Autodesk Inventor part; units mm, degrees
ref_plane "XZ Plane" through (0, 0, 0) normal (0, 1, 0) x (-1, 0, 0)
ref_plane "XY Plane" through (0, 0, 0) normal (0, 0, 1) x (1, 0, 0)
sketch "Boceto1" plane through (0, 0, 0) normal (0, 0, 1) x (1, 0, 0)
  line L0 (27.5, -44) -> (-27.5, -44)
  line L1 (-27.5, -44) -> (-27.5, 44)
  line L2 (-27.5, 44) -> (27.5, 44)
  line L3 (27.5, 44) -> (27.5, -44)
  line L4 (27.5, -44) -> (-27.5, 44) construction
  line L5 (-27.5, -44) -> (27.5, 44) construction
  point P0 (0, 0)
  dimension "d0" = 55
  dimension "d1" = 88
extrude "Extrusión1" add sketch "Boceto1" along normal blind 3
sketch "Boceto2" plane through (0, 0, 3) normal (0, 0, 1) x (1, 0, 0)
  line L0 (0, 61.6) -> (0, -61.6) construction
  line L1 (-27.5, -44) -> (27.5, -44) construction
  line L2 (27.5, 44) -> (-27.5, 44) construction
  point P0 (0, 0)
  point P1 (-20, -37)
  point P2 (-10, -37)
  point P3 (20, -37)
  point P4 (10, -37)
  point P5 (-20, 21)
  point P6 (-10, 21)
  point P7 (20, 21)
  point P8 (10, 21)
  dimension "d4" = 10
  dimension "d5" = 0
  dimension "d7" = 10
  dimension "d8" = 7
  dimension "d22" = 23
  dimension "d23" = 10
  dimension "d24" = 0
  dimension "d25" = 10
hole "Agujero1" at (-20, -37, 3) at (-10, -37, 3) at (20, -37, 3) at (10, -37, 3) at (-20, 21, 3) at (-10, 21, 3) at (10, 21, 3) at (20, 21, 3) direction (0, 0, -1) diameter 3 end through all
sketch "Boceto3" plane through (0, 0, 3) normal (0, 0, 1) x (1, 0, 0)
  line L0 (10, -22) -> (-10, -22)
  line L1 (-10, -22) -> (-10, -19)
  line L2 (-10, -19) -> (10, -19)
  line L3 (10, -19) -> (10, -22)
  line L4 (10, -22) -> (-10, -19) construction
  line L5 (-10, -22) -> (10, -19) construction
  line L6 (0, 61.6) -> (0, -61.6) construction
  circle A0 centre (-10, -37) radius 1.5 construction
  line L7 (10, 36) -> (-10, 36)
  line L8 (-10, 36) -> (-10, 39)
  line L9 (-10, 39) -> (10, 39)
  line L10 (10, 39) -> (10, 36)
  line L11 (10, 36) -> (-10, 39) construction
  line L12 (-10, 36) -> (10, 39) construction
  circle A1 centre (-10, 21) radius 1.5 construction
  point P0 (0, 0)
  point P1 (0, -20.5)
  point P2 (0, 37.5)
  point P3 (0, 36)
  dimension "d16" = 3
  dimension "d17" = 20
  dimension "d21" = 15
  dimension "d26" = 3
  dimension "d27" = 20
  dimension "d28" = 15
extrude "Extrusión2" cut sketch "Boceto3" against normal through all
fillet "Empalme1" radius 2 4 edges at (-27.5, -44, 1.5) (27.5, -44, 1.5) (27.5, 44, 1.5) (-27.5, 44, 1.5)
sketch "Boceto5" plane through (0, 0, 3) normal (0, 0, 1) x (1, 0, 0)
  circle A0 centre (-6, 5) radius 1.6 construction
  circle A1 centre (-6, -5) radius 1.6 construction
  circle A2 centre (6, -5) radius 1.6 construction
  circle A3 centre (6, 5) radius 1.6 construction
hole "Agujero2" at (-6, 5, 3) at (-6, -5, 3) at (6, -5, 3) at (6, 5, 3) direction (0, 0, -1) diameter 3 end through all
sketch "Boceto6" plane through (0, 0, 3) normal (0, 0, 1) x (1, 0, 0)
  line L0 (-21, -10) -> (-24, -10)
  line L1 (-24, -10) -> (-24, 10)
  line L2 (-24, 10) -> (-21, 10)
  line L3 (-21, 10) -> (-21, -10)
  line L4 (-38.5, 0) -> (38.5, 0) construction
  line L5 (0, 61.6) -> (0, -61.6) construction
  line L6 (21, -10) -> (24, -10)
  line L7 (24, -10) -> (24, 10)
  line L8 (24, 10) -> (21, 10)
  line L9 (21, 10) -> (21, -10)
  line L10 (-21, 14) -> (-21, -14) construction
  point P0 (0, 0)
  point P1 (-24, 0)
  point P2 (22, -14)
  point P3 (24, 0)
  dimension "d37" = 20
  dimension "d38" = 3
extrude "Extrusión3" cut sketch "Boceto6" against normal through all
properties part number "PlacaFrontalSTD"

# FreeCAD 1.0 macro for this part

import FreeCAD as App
import Part
import Sketcher
from FreeCAD import Vector
Q = App.Units.Quantity


def edges_at(feature, points):
    """Names of the edges that pass closest to the given points."""
    edges = feature.Shape.Edges
    near = lambda p: min(range(len(edges)), key=lambda i: edges[i].distToShape(Part.Vertex(*p))[0])
    return sorted({f"Edge{near(p) + 1}" for p in points})

doc = App.newDocument("Part")
params = doc.addObject("Spreadsheet::Sheet", "Params")
for row, (alias, value) in enumerate([
    ("sketch1_width", "55 mm"),
    ("sketch1_height", "88 mm"),
    ("pad1_length", "3 mm"),
    ("sketch2_diameter", "3 mm"),
    ("hole_diameter", "3 mm"),
    ("sketch3_width", "20 mm"),
    ("sketch3_height", "3 mm"),
    ("fillet_radius", "2 mm"),
    ("sketch4_diameter", "3 mm"),
    ("hole2_diameter", "3 mm"),
    ("sketch5_width", "3 mm"),
    ("sketch5_height", "20 mm"),
], start=1):
    params.set(f"A{row}", alias)
    params.set(f"B{row}", "=" + value)
    params.setAlias(f"B{row}", alias)

body = doc.addObject("PartDesign::Body", "Body")

sketch1 = body.newObject("Sketcher::SketchObject", "Sketch")
sketch1.AttachmentSupport = (doc.getObject("XY_Plane"), [""])
sketch1.MapMode = "FlatFace"
sketch1.addGeometry([
    Part.LineSegment(Vector(-28, -44, 0), Vector(28, -44, 0)),
    Part.LineSegment(Vector(28, -44, 0), Vector(28, 44, 0)),
    Part.LineSegment(Vector(28, 44, 0), Vector(-28, 44, 0)),
    Part.LineSegment(Vector(-28, 44, 0), Vector(-28, -44, 0)),
], False)
sketch1.addConstraint([
    Sketcher.Constraint("Coincident", 0, 2, 1, 1),
    Sketcher.Constraint("Coincident", 1, 2, 2, 1),
    Sketcher.Constraint("Coincident", 2, 2, 3, 1),
    Sketcher.Constraint("Coincident", 3, 2, 0, 1),
    Sketcher.Constraint("Horizontal", 0),
    Sketcher.Constraint("Vertical", 1),
    Sketcher.Constraint("Horizontal", 2),
    Sketcher.Constraint("Vertical", 3),
    Sketcher.Constraint("Symmetric", 0, 2, 2, 2, -1, 1),
    Sketcher.Constraint("DistanceX", 0, 1, 0, 2, Q("55 mm")),
    Sketcher.Constraint("DistanceY", 1, 1, 1, 2, Q("88 mm")),
])
sketch1.setExpression("Constraints[9]", "Params.sketch1_width")
sketch1.setExpression("Constraints[10]", "Params.sketch1_height")
pad1 = body.newObject("PartDesign::Pad", "Pad")
pad1.Profile = sketch1
pad1.setExpression("Length", "Params.pad1_length")

sketch2 = body.newObject("Sketcher::SketchObject", "Sketch001")
sketch2.AttachmentSupport = (doc.getObject("XY_Plane"), [""])
sketch2.MapMode = "FlatFace"
sketch2.AttachmentOffset = App.Placement(Vector(0, 0, 3), App.Rotation())
sketch2.addGeometry([
    Part.Circle(Vector(-20, -37, 0), Vector(0, 0, 1), 1.5),
    Part.Circle(Vector(-10, -37, 0), Vector(0, 0, 1), 1.5),
    Part.Circle(Vector(20, -37, 0), Vector(0, 0, 1), 1.5),
    Part.Circle(Vector(10, -37, 0), Vector(0, 0, 1), 1.5),
    Part.Circle(Vector(-20, 21, 0), Vector(0, 0, 1), 1.5),
    Part.Circle(Vector(-10, 21, 0), Vector(0, 0, 1), 1.5),
    Part.Circle(Vector(10, 21, 0), Vector(0, 0, 1), 1.5),
    Part.Circle(Vector(20, 21, 0), Vector(0, 0, 1), 1.5),
], False)
sketch2.addConstraint([
    Sketcher.Constraint("Equal", 0, 1),
    Sketcher.Constraint("Equal", 1, 2),
    Sketcher.Constraint("Equal", 2, 3),
    Sketcher.Constraint("Equal", 3, 4),
    Sketcher.Constraint("Equal", 4, 5),
    Sketcher.Constraint("Equal", 5, 6),
    Sketcher.Constraint("Equal", 6, 7),
    Sketcher.Constraint("Symmetric", 0, 3, 2, 3, -2),
    Sketcher.Constraint("Symmetric", 1, 3, 3, 3, -2),
    Sketcher.Constraint("Symmetric", 5, 3, 6, 3, -2),
    Sketcher.Constraint("Symmetric", 4, 3, 7, 3, -2),
    Sketcher.Constraint("Horizontal", 0, 3, 1, 3),
    Sketcher.Constraint("Horizontal", 4, 3, 5, 3),
    Sketcher.Constraint("Vertical", 0, 3, 4, 3),
    Sketcher.Constraint("Vertical", 1, 3, 5, 3),
    Sketcher.Constraint("Diameter", 0, Q("3 mm")),
    Sketcher.Constraint("DistanceX", 0, 3, -1, 1, Q("20 mm")),
    Sketcher.Constraint("DistanceY", 0, 3, -1, 1, Q("37 mm")),
    Sketcher.Constraint("DistanceX", 1, 3, -1, 1, Q("10 mm")),
    Sketcher.Constraint("DistanceY", -1, 1, 4, 3, Q("21 mm")),
])
sketch2.setExpression("Constraints[15]", "Params.sketch2_diameter")
doc.recompute()
hole = body.newObject("PartDesign::Hole", "Hole")
hole.Profile = sketch2
hole.ThreadType = "None"
hole.setExpression("Diameter", "Params.hole_diameter")
hole.DepthType = "ThroughAll"

sketch3 = body.newObject("Sketcher::SketchObject", "Sketch002")
sketch3.AttachmentSupport = (doc.getObject("XY_Plane"), [""])
sketch3.MapMode = "FlatFace"
sketch3.AttachmentOffset = App.Placement(Vector(0, 0, 3), App.Rotation())
sketch3.addGeometry([
    Part.LineSegment(Vector(-10, -22, 0), Vector(10, -22, 0)),
    Part.LineSegment(Vector(10, -22, 0), Vector(10, -19, 0)),
    Part.LineSegment(Vector(10, -19, 0), Vector(-10, -19, 0)),
    Part.LineSegment(Vector(-10, -19, 0), Vector(-10, -22, 0)),
    Part.LineSegment(Vector(-10, 36, 0), Vector(10, 36, 0)),
    Part.LineSegment(Vector(10, 36, 0), Vector(10, 39, 0)),
    Part.LineSegment(Vector(10, 39, 0), Vector(-10, 39, 0)),
    Part.LineSegment(Vector(-10, 39, 0), Vector(-10, 36, 0)),
], False)
sketch3.addConstraint([
    Sketcher.Constraint("Coincident", 0, 2, 1, 1),
    Sketcher.Constraint("Coincident", 1, 2, 2, 1),
    Sketcher.Constraint("Coincident", 2, 2, 3, 1),
    Sketcher.Constraint("Coincident", 3, 2, 0, 1),
    Sketcher.Constraint("Coincident", 4, 2, 5, 1),
    Sketcher.Constraint("Coincident", 5, 2, 6, 1),
    Sketcher.Constraint("Coincident", 6, 2, 7, 1),
    Sketcher.Constraint("Coincident", 7, 2, 4, 1),
    Sketcher.Constraint("Horizontal", 0),
    Sketcher.Constraint("Vertical", 1),
    Sketcher.Constraint("Horizontal", 2),
    Sketcher.Constraint("Vertical", 3),
    Sketcher.Constraint("Horizontal", 4),
    Sketcher.Constraint("Vertical", 5),
    Sketcher.Constraint("Horizontal", 6),
    Sketcher.Constraint("Vertical", 7),
    Sketcher.Constraint("Vertical", 1, 2, 4, 2),
    Sketcher.Constraint("Vertical", 3, 2, 6, 2),
    Sketcher.Constraint("Equal", 3, 5),
    Sketcher.Constraint("DistanceX", 0, 1, 0, 2, Q("20 mm")),
    Sketcher.Constraint("DistanceY", 1, 1, 1, 2, Q("3 mm")),
    Sketcher.Constraint("DistanceX", -1, 1, 0, 2, Q("10 mm")),
    Sketcher.Constraint("DistanceY", 0, 2, -1, 1, Q("22 mm")),
    Sketcher.Constraint("DistanceY", -1, 1, 4, 2, Q("36 mm")),
])
sketch3.setExpression("Constraints[19]", "Params.sketch3_width")
sketch3.setExpression("Constraints[20]", "Params.sketch3_height")
pocket1 = body.newObject("PartDesign::Pocket", "Pocket")
pocket1.Profile = sketch3
pocket1.Type = "ThroughAll"
doc.recompute()

fillet = body.newObject("PartDesign::Fillet", "Fillet")
fillet.Base = (pocket1, edges_at(pocket1, [
    (-27.5, -44, 1.5),
    (27.5, -44, 1.5),
    (27.5, 44, 1.5),
    (-27.5, 44, 1.5),
]))
fillet.setExpression("Radius", "Params.fillet_radius")

sketch4 = body.newObject("Sketcher::SketchObject", "Sketch003")
sketch4.AttachmentSupport = (doc.getObject("XY_Plane"), [""])
sketch4.MapMode = "FlatFace"
sketch4.AttachmentOffset = App.Placement(Vector(0, 0, 3), App.Rotation())
sketch4.addGeometry([
    Part.Circle(Vector(-6, 5, 0), Vector(0, 0, 1), 1.5),
    Part.Circle(Vector(-6, -5, 0), Vector(0, 0, 1), 1.5),
    Part.Circle(Vector(6, -5, 0), Vector(0, 0, 1), 1.5),
    Part.Circle(Vector(6, 5, 0), Vector(0, 0, 1), 1.5),
], False)
sketch4.addConstraint([
    Sketcher.Constraint("Equal", 0, 1),
    Sketcher.Constraint("Equal", 1, 2),
    Sketcher.Constraint("Equal", 2, 3),
    Sketcher.Constraint("Symmetric", 0, 3, 2, 3, -1, 1),
    Sketcher.Constraint("Symmetric", 1, 3, 3, 3, -1, 1),
    Sketcher.Constraint("Symmetric", 1, 3, 2, 3, -2),
    Sketcher.Constraint("Diameter", 0, Q("3 mm")),
    Sketcher.Constraint("DistanceX", 0, 3, -1, 1, Q("6 mm")),
    Sketcher.Constraint("DistanceY", -1, 1, 0, 3, Q("5 mm")),
])
sketch4.setExpression("Constraints[6]", "Params.sketch4_diameter")
doc.recompute()
hole2 = body.newObject("PartDesign::Hole", "Hole001")
hole2.Profile = sketch4
hole2.ThreadType = "None"
hole2.setExpression("Diameter", "Params.hole2_diameter")
hole2.DepthType = "ThroughAll"

sketch5 = body.newObject("Sketcher::SketchObject", "Sketch004")
sketch5.AttachmentSupport = (doc.getObject("XY_Plane"), [""])
sketch5.MapMode = "FlatFace"
sketch5.AttachmentOffset = App.Placement(Vector(0, 0, 3), App.Rotation())
sketch5.addGeometry([
    Part.LineSegment(Vector(-24, -10, 0), Vector(-21, -10, 0)),
    Part.LineSegment(Vector(-21, -10, 0), Vector(-21, 10, 0)),
    Part.LineSegment(Vector(-21, 10, 0), Vector(-24, 10, 0)),
    Part.LineSegment(Vector(-24, 10, 0), Vector(-24, -10, 0)),
    Part.LineSegment(Vector(21, 10, 0), Vector(21, -10, 0)),
    Part.LineSegment(Vector(21, -10, 0), Vector(24, -10, 0)),
    Part.LineSegment(Vector(24, -10, 0), Vector(24, 10, 0)),
    Part.LineSegment(Vector(24, 10, 0), Vector(21, 10, 0)),
], False)
sketch5.addConstraint([
    Sketcher.Constraint("Coincident", 0, 2, 1, 1),
    Sketcher.Constraint("Coincident", 1, 2, 2, 1),
    Sketcher.Constraint("Coincident", 2, 2, 3, 1),
    Sketcher.Constraint("Coincident", 3, 2, 0, 1),
    Sketcher.Constraint("Coincident", 4, 2, 5, 1),
    Sketcher.Constraint("Coincident", 5, 2, 6, 1),
    Sketcher.Constraint("Coincident", 6, 2, 7, 1),
    Sketcher.Constraint("Coincident", 7, 2, 4, 1),
    Sketcher.Constraint("Horizontal", 0),
    Sketcher.Constraint("Vertical", 1),
    Sketcher.Constraint("Horizontal", 2),
    Sketcher.Constraint("Vertical", 3),
    Sketcher.Constraint("Vertical", 4),
    Sketcher.Constraint("Horizontal", 5),
    Sketcher.Constraint("Vertical", 6),
    Sketcher.Constraint("Horizontal", 7),
    Sketcher.Constraint("Symmetric", 1, 2, 4, 2, -1, 1),
    Sketcher.Constraint("Symmetric", 3, 2, 6, 2, -1, 1),
    Sketcher.Constraint("Horizontal", 3, 2, 4, 2),
    Sketcher.Constraint("DistanceX", 0, 1, 0, 2, Q("3 mm")),
    Sketcher.Constraint("DistanceY", 1, 1, 1, 2, Q("20 mm")),
    Sketcher.Constraint("DistanceX", 0, 2, -1, 1, Q("21 mm")),
])
sketch5.setExpression("Constraints[19]", "Params.sketch5_width")
sketch5.setExpression("Constraints[20]", "Params.sketch5_height")
pocket2 = body.newObject("PartDesign::Pocket", "Pocket001")
pocket2.Profile = sketch5
pocket2.Type = "ThroughAll"

doc.recompute()
